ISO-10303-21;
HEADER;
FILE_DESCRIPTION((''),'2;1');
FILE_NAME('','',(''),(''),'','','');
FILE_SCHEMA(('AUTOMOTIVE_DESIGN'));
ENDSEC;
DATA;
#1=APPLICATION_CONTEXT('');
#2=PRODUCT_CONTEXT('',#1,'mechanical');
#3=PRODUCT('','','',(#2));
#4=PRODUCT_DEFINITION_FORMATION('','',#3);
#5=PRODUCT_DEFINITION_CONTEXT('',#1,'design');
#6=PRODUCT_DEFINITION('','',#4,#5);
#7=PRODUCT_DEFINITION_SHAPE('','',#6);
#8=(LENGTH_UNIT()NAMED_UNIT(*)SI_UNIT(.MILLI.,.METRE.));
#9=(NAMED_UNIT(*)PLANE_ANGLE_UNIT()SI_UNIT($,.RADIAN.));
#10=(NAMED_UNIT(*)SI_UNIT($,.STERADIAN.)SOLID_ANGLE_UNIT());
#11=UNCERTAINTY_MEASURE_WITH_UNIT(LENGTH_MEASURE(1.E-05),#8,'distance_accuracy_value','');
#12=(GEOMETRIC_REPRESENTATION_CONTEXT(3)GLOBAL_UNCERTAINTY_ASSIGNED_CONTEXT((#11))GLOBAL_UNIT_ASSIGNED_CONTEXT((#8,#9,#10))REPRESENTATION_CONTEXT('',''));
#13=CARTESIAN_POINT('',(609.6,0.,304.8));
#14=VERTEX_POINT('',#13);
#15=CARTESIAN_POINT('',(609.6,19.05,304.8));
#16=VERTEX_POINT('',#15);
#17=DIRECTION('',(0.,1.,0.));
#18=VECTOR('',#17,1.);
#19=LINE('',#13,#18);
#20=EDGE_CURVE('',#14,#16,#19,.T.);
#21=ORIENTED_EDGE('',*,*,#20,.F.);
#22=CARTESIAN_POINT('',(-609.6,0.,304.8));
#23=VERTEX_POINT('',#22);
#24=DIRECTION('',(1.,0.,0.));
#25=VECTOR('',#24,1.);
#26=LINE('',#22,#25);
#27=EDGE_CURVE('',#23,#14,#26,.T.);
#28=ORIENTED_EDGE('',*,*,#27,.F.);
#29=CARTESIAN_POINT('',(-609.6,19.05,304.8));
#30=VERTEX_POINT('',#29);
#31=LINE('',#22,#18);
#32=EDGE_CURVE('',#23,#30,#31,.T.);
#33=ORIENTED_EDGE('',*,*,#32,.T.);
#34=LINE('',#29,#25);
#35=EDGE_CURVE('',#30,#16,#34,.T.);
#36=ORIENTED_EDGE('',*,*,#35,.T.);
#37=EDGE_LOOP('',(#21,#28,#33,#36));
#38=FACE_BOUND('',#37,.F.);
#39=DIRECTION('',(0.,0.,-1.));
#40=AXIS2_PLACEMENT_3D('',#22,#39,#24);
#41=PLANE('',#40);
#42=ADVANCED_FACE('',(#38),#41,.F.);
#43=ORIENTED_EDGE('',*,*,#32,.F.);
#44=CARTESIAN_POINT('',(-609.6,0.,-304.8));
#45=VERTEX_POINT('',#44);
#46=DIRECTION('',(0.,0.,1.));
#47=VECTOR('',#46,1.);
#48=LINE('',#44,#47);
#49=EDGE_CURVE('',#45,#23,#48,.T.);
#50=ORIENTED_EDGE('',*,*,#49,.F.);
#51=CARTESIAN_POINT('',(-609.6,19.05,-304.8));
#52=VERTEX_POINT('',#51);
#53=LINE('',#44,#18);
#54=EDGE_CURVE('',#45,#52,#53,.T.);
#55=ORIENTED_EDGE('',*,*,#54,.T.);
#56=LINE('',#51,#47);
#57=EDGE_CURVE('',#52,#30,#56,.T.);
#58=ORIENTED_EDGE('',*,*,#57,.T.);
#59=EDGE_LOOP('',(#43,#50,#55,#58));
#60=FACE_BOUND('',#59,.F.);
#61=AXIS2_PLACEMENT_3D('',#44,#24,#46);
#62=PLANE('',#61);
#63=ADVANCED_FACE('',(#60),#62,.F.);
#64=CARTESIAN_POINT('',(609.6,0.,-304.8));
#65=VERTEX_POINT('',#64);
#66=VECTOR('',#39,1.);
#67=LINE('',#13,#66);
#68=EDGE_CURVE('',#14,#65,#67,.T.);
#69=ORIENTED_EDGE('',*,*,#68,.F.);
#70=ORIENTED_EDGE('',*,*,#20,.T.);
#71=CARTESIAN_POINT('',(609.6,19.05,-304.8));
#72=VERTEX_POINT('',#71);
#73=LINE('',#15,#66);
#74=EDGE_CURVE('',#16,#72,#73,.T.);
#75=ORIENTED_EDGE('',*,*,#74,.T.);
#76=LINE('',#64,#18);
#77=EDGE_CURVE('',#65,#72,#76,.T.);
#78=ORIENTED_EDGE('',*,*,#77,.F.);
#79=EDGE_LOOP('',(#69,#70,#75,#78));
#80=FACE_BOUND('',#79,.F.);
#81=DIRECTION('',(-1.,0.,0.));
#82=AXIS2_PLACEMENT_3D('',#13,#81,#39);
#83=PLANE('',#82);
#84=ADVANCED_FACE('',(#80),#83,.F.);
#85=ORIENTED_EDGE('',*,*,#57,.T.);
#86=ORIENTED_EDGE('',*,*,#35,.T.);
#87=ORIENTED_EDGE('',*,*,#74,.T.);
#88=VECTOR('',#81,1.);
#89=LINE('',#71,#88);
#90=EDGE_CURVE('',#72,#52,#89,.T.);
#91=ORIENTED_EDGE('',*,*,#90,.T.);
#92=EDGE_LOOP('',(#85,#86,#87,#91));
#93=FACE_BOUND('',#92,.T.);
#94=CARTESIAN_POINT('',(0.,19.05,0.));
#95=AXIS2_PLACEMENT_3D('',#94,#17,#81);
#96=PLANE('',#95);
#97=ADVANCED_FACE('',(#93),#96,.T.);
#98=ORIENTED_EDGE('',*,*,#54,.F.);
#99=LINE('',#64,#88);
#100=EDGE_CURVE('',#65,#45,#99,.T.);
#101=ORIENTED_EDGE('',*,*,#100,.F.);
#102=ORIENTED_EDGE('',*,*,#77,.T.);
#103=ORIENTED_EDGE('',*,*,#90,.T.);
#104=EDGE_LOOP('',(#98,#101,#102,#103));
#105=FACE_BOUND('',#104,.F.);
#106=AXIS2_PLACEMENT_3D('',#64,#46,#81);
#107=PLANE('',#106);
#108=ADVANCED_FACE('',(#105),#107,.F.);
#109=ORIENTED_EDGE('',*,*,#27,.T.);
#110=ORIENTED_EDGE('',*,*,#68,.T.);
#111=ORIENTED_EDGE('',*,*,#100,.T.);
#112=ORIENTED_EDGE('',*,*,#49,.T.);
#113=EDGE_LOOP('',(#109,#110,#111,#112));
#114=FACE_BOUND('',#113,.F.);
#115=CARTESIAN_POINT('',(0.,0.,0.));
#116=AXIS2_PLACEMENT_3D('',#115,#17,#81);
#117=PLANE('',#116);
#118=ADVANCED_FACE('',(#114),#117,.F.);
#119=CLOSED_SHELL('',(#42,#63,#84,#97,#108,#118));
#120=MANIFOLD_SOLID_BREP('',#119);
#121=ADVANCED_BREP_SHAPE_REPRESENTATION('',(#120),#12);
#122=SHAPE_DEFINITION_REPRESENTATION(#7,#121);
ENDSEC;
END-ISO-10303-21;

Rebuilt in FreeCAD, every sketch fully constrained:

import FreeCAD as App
import Part
import Sketcher
Q = App.Units.Quantity


def add_polygon(sketch, points):
    """Adds a closed chain of lines whose ends are joined by coincident constraints."""
    first, n = sketch.GeometryCount, len(points)
    for a, b in zip(points, points[1:] + points[:1]):
        sketch.addGeometry(Part.LineSegment(App.Vector(*a, 0), App.Vector(*b, 0)), False)
    for i in range(n):
        sketch.addConstraint(Sketcher.Constraint("Coincident", first + i, 2, first + (i + 1) % n, 1))

doc = App.newDocument("Part")
body = doc.addObject("PartDesign::Body", "Body")

# Sketch on XZ plane
sketch1 = body.newObject("Sketcher::SketchObject", "Sketch")
sketch1.AttachmentSupport = (doc.getObject("XZ_Plane"), [""])
sketch1.MapMode = "FlatFace"
add_polygon(sketch1, [(610, 305), (610, -305), (-610, -305), (-610, 305)])  # lines 0-3
sketch1.addConstraint([
    Sketcher.Constraint("Vertical", 0),
    Sketcher.Constraint("Horizontal", 1),
    Sketcher.Constraint("Vertical", 2),
    Sketcher.Constraint("Horizontal", 3),
    Sketcher.Constraint("Symmetric", 0, 2, 2, 2, -1, 1),
    Sketcher.Constraint("DistanceX", 1, 2, 1, 1, Q("48 in")),
    Sketcher.Constraint("DistanceY", 0, 2, 0, 1, Q("24 in")),
])
pad1 = body.newObject("PartDesign::Pad", "Pad")
pad1.Profile = sketch1
pad1.Length = Q("0.75 in")
pad1.Reversed = True

doc.recompute()
